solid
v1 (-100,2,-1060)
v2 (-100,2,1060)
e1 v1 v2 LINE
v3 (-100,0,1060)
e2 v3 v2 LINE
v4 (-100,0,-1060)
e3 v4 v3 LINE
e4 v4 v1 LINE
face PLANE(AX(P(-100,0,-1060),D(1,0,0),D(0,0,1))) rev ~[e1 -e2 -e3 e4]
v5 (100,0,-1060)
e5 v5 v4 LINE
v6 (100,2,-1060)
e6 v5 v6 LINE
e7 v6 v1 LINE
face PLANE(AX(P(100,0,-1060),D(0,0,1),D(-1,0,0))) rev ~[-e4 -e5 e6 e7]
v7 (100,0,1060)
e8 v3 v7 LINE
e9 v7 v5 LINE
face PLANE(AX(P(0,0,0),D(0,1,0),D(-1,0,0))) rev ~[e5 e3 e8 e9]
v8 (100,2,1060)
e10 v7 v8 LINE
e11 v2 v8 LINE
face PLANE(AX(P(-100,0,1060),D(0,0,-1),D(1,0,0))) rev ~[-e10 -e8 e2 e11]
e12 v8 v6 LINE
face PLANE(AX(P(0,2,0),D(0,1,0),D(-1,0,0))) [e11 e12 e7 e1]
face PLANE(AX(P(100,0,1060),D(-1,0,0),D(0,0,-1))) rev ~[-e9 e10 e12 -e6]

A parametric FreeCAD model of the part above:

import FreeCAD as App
import Part
import Sketcher
from FreeCAD import Vector
Q = App.Units.Quantity

doc = App.newDocument("Part")
body = doc.addObject("PartDesign::Body", "Body")

# Sketch on XZ plane
sketch1 = doc.addObject("Sketcher::SketchObject", "Sketch")
body.addObject(sketch1)
sketch1.AttachmentSupport = (doc.XZ_Plane, [""])
sketch1.MapMode = "FlatFace"
sketch1.addGeometry(Part.LineSegment(Vector(-100, -1060, 0), Vector(-100, 1060, 0)), False)
sketch1.addGeometry(Part.LineSegment(Vector(-100, 1060, 0), Vector(100, 1060, 0)), False)
sketch1.addGeometry(Part.LineSegment(Vector(100, 1060, 0), Vector(100, -1060, 0)), False)
sketch1.addGeometry(Part.LineSegment(Vector(100, -1060, 0), Vector(-100, -1060, 0)), False)
sketch1.addConstraint(Sketcher.Constraint("Coincident", 0, 2, 1, 1))
sketch1.addConstraint(Sketcher.Constraint("Coincident", 1, 2, 2, 1))
sketch1.addConstraint(Sketcher.Constraint("Coincident", 2, 2, 3, 1))
sketch1.addConstraint(Sketcher.Constraint("Coincident", 3, 2, 0, 1))
sketch1.addConstraint(Sketcher.Constraint("Vertical", 0))
sketch1.addConstraint(Sketcher.Constraint("Horizontal", 1))
sketch1.addConstraint(Sketcher.Constraint("Vertical", 2))
sketch1.addConstraint(Sketcher.Constraint("Horizontal", 3))
sketch1.addConstraint(Sketcher.Constraint("Symmetric", 0, 2, 2, 2, -1, 1))
sketch1.addConstraint(Sketcher.Constraint("DistanceX", 1, 1, 1, 2, Q("200 mm")))
sketch1.addConstraint(Sketcher.Constraint("DistanceY", 0, 1, 0, 2, Q("2120 mm")))
pad1 = doc.addObject("PartDesign::Pad", "Pad")
body.addObject(pad1)
pad1.Profile = sketch1
pad1.Length = 2
pad1.Reversed = True

doc.recompute()
